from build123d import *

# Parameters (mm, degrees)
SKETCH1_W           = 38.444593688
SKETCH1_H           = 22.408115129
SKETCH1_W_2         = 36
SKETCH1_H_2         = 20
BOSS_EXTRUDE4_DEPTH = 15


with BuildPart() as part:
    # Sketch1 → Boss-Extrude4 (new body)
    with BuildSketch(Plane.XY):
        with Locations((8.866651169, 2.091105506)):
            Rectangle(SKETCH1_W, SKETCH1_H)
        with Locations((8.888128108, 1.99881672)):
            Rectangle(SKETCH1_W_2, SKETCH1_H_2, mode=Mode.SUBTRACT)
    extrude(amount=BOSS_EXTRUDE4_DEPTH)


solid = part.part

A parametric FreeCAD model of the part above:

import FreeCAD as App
import Part
import Sketcher
from FreeCAD import Vector


def add_polygon(sketch, points):
    """Adds a closed chain of lines whose ends are joined by coincident constraints."""
    first, n = sketch.GeometryCount, len(points)
    for a, b in zip(points, points[1:] + points[:1]):
        sketch.addGeometry(Part.LineSegment(App.Vector(*a, 0), App.Vector(*b, 0)), False)
    for i in range(n):
        sketch.addConstraint(Sketcher.Constraint("Coincident", first + i, 2, first + (i + 1) % n, 1))

doc = App.newDocument("Part")
body = doc.addObject("PartDesign::Body", "Body")

# Sketch on XY plane
sketch1 = body.newObject("Sketcher::SketchObject", "Sketch")
sketch1.AttachmentSupport = (doc.getObject("XY_Plane"), [""])
sketch1.MapMode = "FlatFace"
add_polygon(sketch1, [(-10, 13), (-10, -9), (28, -9), (28, 13)])  # lines 0-3
add_polygon(sketch1, [(27, -8), (-9, -8), (-9, 12), (27, 12)])  # lines 4-7
sketch1.addConstraint(Sketcher.Constraint("Vertical", 0))
sketch1.addConstraint(Sketcher.Constraint("Horizontal", 1))
sketch1.addConstraint(Sketcher.Constraint("Vertical", 2))
sketch1.addConstraint(Sketcher.Constraint("Horizontal", 3))
sketch1.addConstraint(Sketcher.Constraint("Horizontal", 4))
sketch1.addConstraint(Sketcher.Constraint("Vertical", 5))
sketch1.addConstraint(Sketcher.Constraint("Horizontal", 6))
sketch1.addConstraint(Sketcher.Constraint("Vertical", 7))
sketch1.addConstraint(Sketcher.Constraint("DistanceX", 4, 2, 4, 1, 36.0))
sketch1.addConstraint(Sketcher.Constraint("DistanceY", 5, 1, 5, 2, 20.0))
sketch1.addConstraint(Sketcher.Constraint("DistanceX", 1, 1, 1, 2, 38.444594))
sketch1.addConstraint(Sketcher.Constraint("DistanceY", 0, 2, 0, 1, 22.408115))
sketch1.addConstraint(Sketcher.Constraint("DistanceX", -1, 1, 1, 2, 28.088948))
sketch1.addConstraint(Sketcher.Constraint("DistanceX", 4, 2, -1, 1, 9.111872))
sketch1.addConstraint(Sketcher.Constraint("DistanceY", 0, 2, 4, 2, 1.111769))
sketch1.addConstraint(Sketcher.Constraint("DistanceY", 0, 2, -1, 1, 9.112952))
pad1 = body.newObject("PartDesign::Pad", "Pad")
pad1.Profile = sketch1
pad1.Length = 15

doc.recompute()
